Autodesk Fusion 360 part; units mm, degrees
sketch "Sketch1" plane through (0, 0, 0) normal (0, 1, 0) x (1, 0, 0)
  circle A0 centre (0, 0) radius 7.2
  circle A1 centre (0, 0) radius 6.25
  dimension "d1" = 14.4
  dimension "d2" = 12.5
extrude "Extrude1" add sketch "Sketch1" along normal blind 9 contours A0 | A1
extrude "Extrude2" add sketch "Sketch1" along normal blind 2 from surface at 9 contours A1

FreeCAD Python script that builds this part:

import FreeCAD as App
import Part
import Sketcher

V = App.Vector

doc = App.newDocument("Part")
body = doc.addObject("PartDesign::Body", "Body")

# Sketch on XZ plane
sketch1 = doc.addObject("Sketcher::SketchObject", "Sketch")
body.addObject(sketch1)
sketch1.AttachmentSupport = (doc.XZ_Plane, [""])
sketch1.MapMode = "FlatFace"
sketch1.addGeometry(Part.Circle(V(0, 0, 0), V(0, 0, 1), 7.2), False)
sketch1.addConstraint([
    Sketcher.Constraint("Coincident", 0, 3, -1, 1),
    Sketcher.Constraint("Diameter", 0, 14.4),
])
pad1 = doc.addObject("PartDesign::Pad", "Pad")
body.addObject(pad1)
pad1.Profile = sketch1
pad1.Length = 9
pad1.Reversed = True

# Sketch on XZ plane
sketch2 = doc.addObject("Sketcher::SketchObject", "Sketch001")
body.addObject(sketch2)
sketch2.AttachmentSupport = (doc.XZ_Plane, [""])
sketch2.MapMode = "FlatFace"
sketch2.AttachmentOffset = App.Placement(V(0, 0, -9), App.Rotation())
sketch2.addGeometry(Part.Circle(V(0, 0, 0), V(0, 0, 1), 6.25), False)
sketch2.addConstraint([
    Sketcher.Constraint("Coincident", 0, 3, -1, 1),
    Sketcher.Constraint("Diameter", 0, 12.5),
])
pad2 = doc.addObject("PartDesign::Pad", "Pad001")
body.addObject(pad2)
pad2.Profile = sketch2
pad2.Length = 2
pad2.Reversed = True

doc.recompute()
